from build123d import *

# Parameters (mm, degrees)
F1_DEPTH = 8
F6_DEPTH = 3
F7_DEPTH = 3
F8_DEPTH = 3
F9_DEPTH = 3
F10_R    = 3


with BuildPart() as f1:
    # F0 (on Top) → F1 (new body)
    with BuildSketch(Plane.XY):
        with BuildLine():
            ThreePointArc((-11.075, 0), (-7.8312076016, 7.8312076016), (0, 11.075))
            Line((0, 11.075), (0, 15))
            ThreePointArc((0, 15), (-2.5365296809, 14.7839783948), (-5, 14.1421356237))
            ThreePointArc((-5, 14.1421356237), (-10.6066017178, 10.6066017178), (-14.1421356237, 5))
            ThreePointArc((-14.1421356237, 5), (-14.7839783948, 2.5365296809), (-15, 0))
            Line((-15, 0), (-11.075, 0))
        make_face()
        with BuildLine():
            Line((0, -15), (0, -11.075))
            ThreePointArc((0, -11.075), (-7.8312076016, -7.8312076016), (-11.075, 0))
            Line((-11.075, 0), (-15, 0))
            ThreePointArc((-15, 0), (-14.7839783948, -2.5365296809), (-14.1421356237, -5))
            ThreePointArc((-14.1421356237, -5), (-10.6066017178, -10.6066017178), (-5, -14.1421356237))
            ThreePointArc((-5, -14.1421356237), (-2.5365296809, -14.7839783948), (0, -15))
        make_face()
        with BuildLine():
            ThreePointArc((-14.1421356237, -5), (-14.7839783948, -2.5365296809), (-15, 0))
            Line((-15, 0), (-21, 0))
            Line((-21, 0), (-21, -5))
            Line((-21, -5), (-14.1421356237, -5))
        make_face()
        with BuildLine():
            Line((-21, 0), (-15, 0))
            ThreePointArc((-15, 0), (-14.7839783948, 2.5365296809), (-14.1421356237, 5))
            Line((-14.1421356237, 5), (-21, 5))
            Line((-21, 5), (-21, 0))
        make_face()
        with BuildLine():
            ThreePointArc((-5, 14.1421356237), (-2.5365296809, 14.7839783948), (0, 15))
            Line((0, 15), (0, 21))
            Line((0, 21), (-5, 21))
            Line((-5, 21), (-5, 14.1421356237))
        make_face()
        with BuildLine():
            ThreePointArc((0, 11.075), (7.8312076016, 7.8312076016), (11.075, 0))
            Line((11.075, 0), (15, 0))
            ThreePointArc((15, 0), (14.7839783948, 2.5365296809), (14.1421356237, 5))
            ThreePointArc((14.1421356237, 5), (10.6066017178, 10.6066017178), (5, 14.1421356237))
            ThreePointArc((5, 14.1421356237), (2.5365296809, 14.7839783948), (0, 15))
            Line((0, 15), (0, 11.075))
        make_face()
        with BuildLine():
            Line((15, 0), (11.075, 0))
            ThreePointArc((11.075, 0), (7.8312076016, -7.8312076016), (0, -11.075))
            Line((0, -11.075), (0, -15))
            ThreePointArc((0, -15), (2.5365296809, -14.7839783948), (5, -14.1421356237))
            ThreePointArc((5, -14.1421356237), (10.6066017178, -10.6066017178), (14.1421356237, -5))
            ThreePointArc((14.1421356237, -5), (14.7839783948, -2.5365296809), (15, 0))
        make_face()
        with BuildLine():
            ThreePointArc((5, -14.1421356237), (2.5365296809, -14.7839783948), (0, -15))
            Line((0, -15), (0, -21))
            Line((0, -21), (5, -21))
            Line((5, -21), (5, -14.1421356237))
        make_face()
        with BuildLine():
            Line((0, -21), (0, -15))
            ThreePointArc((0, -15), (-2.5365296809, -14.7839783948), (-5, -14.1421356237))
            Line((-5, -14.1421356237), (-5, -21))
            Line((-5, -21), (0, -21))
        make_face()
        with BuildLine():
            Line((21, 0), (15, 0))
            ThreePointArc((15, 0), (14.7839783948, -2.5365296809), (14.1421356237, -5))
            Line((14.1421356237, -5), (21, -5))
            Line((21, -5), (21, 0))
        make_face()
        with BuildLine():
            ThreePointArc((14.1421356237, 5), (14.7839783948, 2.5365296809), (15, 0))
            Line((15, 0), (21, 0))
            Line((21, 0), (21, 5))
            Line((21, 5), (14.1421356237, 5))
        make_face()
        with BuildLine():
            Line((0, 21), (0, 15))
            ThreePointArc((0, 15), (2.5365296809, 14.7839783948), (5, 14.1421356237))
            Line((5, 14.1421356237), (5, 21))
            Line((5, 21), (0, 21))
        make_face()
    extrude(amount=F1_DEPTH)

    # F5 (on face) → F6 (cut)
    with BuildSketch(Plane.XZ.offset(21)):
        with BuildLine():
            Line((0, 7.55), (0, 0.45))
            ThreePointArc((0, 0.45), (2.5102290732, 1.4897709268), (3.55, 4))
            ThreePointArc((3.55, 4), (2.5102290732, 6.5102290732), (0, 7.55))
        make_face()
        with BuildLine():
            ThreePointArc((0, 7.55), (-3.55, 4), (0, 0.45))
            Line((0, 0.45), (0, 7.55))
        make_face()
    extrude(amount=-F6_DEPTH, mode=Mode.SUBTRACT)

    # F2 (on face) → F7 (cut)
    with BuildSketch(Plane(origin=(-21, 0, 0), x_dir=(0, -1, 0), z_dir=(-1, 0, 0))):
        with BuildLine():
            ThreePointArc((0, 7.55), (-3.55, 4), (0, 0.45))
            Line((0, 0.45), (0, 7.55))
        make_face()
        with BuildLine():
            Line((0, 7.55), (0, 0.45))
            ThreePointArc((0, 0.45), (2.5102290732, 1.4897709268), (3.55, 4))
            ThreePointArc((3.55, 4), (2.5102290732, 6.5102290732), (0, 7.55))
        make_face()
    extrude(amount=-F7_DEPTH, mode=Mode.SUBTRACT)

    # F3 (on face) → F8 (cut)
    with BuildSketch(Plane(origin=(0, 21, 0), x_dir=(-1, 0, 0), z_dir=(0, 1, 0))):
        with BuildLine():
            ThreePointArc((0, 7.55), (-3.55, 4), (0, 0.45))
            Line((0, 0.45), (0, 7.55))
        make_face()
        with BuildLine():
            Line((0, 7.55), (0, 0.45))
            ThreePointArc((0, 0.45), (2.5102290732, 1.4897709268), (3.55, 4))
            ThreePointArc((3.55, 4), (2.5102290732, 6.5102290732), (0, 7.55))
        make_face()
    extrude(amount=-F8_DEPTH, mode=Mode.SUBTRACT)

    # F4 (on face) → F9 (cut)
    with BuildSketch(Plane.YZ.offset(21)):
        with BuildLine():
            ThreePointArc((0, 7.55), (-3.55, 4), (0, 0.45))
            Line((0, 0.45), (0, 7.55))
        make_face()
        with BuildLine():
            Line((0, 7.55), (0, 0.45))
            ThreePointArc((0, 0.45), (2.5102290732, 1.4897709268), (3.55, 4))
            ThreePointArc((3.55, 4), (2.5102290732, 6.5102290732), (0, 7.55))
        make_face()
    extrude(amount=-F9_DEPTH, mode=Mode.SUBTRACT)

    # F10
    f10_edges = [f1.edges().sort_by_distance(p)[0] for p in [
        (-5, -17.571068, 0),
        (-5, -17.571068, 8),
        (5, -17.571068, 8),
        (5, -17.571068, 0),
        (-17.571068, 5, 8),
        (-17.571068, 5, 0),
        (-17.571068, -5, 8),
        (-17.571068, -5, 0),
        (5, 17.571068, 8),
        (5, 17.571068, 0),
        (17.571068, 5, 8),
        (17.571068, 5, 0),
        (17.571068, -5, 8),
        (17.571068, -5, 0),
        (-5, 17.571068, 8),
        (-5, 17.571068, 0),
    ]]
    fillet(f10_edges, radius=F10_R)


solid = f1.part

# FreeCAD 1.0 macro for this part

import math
import FreeCAD as App
import Part
import Sketcher
from FreeCAD import Vector
Q = App.Units.Quantity


def edges_at(feature, points):
    """Names of the edges that pass closest to the given points."""
    edges = feature.Shape.Edges
    near = lambda p: min(range(len(edges)), key=lambda i: edges[i].distToShape(Part.Vertex(*p))[0])
    return sorted({f"Edge{near(p) + 1}" for p in points})

doc = App.newDocument("Part")
body = doc.addObject("PartDesign::Body", "Body")

sketch1 = doc.addObject("Sketcher::SketchObject", "Sketch")
body.addObject(sketch1)
sketch1.AttachmentSupport = (doc.XY_Plane, [""])
sketch1.MapMode = "FlatFace"
sketch1.addGeometry(Part.ArcOfCircle(Part.Circle(Vector(0, 0, 0), Vector(0, 0, 1), 15), math.radians(19), math.radians(71)), False)
sketch1.addGeometry(Part.LineSegment(Vector(5, 14, 0), Vector(5, 21, 0)), False)
sketch1.addGeometry(Part.LineSegment(Vector(5, 21, 0), Vector(-5, 21, 0)), False)
sketch1.addGeometry(Part.LineSegment(Vector(-5, 21, 0), Vector(-5, 14, 0)), False)
sketch1.addGeometry(Part.ArcOfCircle(Part.Circle(Vector(0, 0, 0), Vector(0, 0, 1), 15), math.radians(109), math.radians(161)), False)
sketch1.addGeometry(Part.LineSegment(Vector(-14, 5, 0), Vector(-21, 5, 0)), False)
sketch1.addGeometry(Part.LineSegment(Vector(-21, 5, 0), Vector(-21, -5, 0)), False)
sketch1.addGeometry(Part.LineSegment(Vector(-21, -5, 0), Vector(-14, -5, 0)), False)
sketch1.addGeometry(Part.ArcOfCircle(Part.Circle(Vector(0, 0, 0), Vector(0, 0, 1), 15), math.radians(-161), math.radians(-109)), False)
sketch1.addGeometry(Part.LineSegment(Vector(-5, -14, 0), Vector(-5, -21, 0)), False)
sketch1.addGeometry(Part.LineSegment(Vector(-5, -21, 0), Vector(5, -21, 0)), False)
sketch1.addGeometry(Part.LineSegment(Vector(5, -21, 0), Vector(5, -14, 0)), False)
sketch1.addGeometry(Part.ArcOfCircle(Part.Circle(Vector(0, 0, 0), Vector(0, 0, 1), 15), math.radians(-71), math.radians(-19)), False)
sketch1.addGeometry(Part.LineSegment(Vector(14, -5, 0), Vector(21, -5, 0)), False)
sketch1.addGeometry(Part.LineSegment(Vector(21, -5, 0), Vector(21, 5, 0)), False)
sketch1.addGeometry(Part.LineSegment(Vector(21, 5, 0), Vector(14, 5, 0)), False)
sketch1.addGeometry(Part.ArcOfCircle(Part.Circle(Vector(0, 0, 0), Vector(0, 0, 1), 11), math.radians(90), math.radians(180)), False)
sketch1.addGeometry(Part.ArcOfCircle(Part.Circle(Vector(0, 0, 0), Vector(0, 0, 1), 11), math.radians(0), math.radians(90)), False)
sketch1.addGeometry(Part.ArcOfCircle(Part.Circle(Vector(0, 0, 0), Vector(0, 0, 1), 11), math.radians(-90), math.radians(0)), False)
sketch1.addGeometry(Part.ArcOfCircle(Part.Circle(Vector(0, 0, 0), Vector(0, 0, 1), 11), math.radians(180), math.radians(270)), False)
sketch1.addConstraint(Sketcher.Constraint("Coincident", 0, 2, 1, 1))
sketch1.addConstraint(Sketcher.Constraint("Coincident", 1, 2, 2, 1))
sketch1.addConstraint(Sketcher.Constraint("Coincident", 2, 2, 3, 1))
sketch1.addConstraint(Sketcher.Constraint("Coincident", 3, 2, 4, 1))
sketch1.addConstraint(Sketcher.Constraint("Coincident", 4, 2, 5, 1))
sketch1.addConstraint(Sketcher.Constraint("Coincident", 5, 2, 6, 1))
sketch1.addConstraint(Sketcher.Constraint("Coincident", 6, 2, 7, 1))
sketch1.addConstraint(Sketcher.Constraint("Coincident", 7, 2, 8, 1))
sketch1.addConstraint(Sketcher.Constraint("Coincident", 8, 2, 9, 1))
sketch1.addConstraint(Sketcher.Constraint("Coincident", 9, 2, 10, 1))
sketch1.addConstraint(Sketcher.Constraint("Coincident", 10, 2, 11, 1))
sketch1.addConstraint(Sketcher.Constraint("Coincident", 11, 2, 12, 1))
sketch1.addConstraint(Sketcher.Constraint("Coincident", 12, 2, 13, 1))
sketch1.addConstraint(Sketcher.Constraint("Coincident", 13, 2, 14, 1))
sketch1.addConstraint(Sketcher.Constraint("Coincident", 14, 2, 15, 1))
sketch1.addConstraint(Sketcher.Constraint("Coincident", 15, 2, 0, 1))
sketch1.addConstraint(Sketcher.Constraint("Tangent", 16, 1, 17, 2))
sketch1.addConstraint(Sketcher.Constraint("Tangent", 17, 1, 18, 2))
sketch1.addConstraint(Sketcher.Constraint("Tangent", 18, 1, 19, 2))
sketch1.addConstraint(Sketcher.Constraint("Tangent", 19, 1, 16, 2))
sketch1.addConstraint(Sketcher.Constraint("Vertical", 1))
sketch1.addConstraint(Sketcher.Constraint("Horizontal", 2))
sketch1.addConstraint(Sketcher.Constraint("Vertical", 3))
sketch1.addConstraint(Sketcher.Constraint("Horizontal", 5))
sketch1.addConstraint(Sketcher.Constraint("Vertical", 6))
sketch1.addConstraint(Sketcher.Constraint("Horizontal", 7))
sketch1.addConstraint(Sketcher.Constraint("Vertical", 9))
sketch1.addConstraint(Sketcher.Constraint("Horizontal", 10))
sketch1.addConstraint(Sketcher.Constraint("Vertical", 11))
sketch1.addConstraint(Sketcher.Constraint("Horizontal", 13))
sketch1.addConstraint(Sketcher.Constraint("Vertical", 14))
sketch1.addConstraint(Sketcher.Constraint("Horizontal", 15))
sketch1.addConstraint(Sketcher.Constraint("Coincident", 0, 3, -1, 1))
sketch1.addConstraint(Sketcher.Constraint("Coincident", 4, 3, -1, 1))
sketch1.addConstraint(Sketcher.Constraint("Coincident", 8, 3, -1, 1))
sketch1.addConstraint(Sketcher.Constraint("Coincident", 12, 3, -1, 1))
sketch1.addConstraint(Sketcher.Constraint("Coincident", 16, 3, -1, 1))
sketch1.addConstraint(Sketcher.Constraint("Equal", 0, 4))
sketch1.addConstraint(Sketcher.Constraint("Equal", 4, 8))
sketch1.addConstraint(Sketcher.Constraint("Equal", 8, 12))
sketch1.addConstraint(Sketcher.Constraint("Equal", 16, 17))
sketch1.addConstraint(Sketcher.Constraint("Symmetric", 1, 2, 9, 2, -1, 1))
sketch1.addConstraint(Sketcher.Constraint("Symmetric", 5, 2, 13, 2, -1, 1))
sketch1.addConstraint(Sketcher.Constraint("PointOnObject", 16, 1, -2))
sketch1.addConstraint(Sketcher.Constraint("PointOnObject", 17, 1, -1))
sketch1.addConstraint(Sketcher.Constraint("PointOnObject", 18, 1, -2))
sketch1.addConstraint(Sketcher.Constraint("PointOnObject", 19, 1, -1))
sketch1.addConstraint(Sketcher.Constraint("Horizontal", 0, 2, 3, 2))
sketch1.addConstraint(Sketcher.Constraint("Horizontal", 8, 2, 11, 2))
sketch1.addConstraint(Sketcher.Constraint("Horizontal", 7, 2, 12, 2))
sketch1.addConstraint(Sketcher.Constraint("Horizontal", 5, 2, 14, 2))
sketch1.addConstraint(Sketcher.Constraint("Equal", 15, 1))
sketch1.addConstraint(Sketcher.Constraint("Equal", 10, 6))
sketch1.addConstraint(Sketcher.Constraint("Radius", 0, Q("15 mm")))
sketch1.addConstraint(Sketcher.Constraint("DistanceX", 2, 2, 2, 1, Q("10 mm")))
sketch1.addConstraint(Sketcher.Constraint("DistanceY", -1, 1, 1, 2, Q("21 mm")))
sketch1.addConstraint(Sketcher.Constraint("Radius", 16, Q("11.075 mm")))
pad1 = doc.addObject("PartDesign::Pad", "Pad")
body.addObject(pad1)
pad1.Profile = sketch1
pad1.Length = 8

sketch2 = doc.addObject("Sketcher::SketchObject", "Sketch001")
body.addObject(sketch2)
sketch2.AttachmentSupport = (doc.XZ_Plane, [""])
sketch2.MapMode = "FlatFace"
sketch2.AttachmentOffset = App.Placement(Vector(0, 0, 21), App.Rotation())
sketch2.addGeometry(Part.ArcOfCircle(Part.Circle(Vector(0, 4, 0), Vector(0, 0, 1), 3.5), math.radians(-90), math.radians(0)), False)
sketch2.addGeometry(Part.ArcOfCircle(Part.Circle(Vector(0, 4, 0), Vector(0, 0, 1), 3.5), math.radians(0), math.radians(90)), False)
sketch2.addGeometry(Part.ArcOfCircle(Part.Circle(Vector(0, 4, 0), Vector(0, 0, 1), 3.5), math.radians(90), math.radians(270)), False)
sketch2.addConstraint(Sketcher.Constraint("Tangent", 0, 2, 1, 1))
sketch2.addConstraint(Sketcher.Constraint("Tangent", 1, 2, 2, 1))
sketch2.addConstraint(Sketcher.Constraint("Tangent", 2, 2, 0, 1))
sketch2.addConstraint(Sketcher.Constraint("PointOnObject", 0, 3, -2))
sketch2.addConstraint(Sketcher.Constraint("PointOnObject", 1, 2, -2))
sketch2.addConstraint(Sketcher.Constraint("PointOnObject", 2, 2, -2))
sketch2.addConstraint(Sketcher.Constraint("Horizontal", 2, 3, 0, 2))
sketch2.addConstraint(Sketcher.Constraint("Radius", 0, Q("3.55 mm")))
sketch2.addConstraint(Sketcher.Constraint("DistanceY", -1, 1, 0, 3, Q("4 mm")))
pocket1 = doc.addObject("PartDesign::Pocket", "Pocket")
body.addObject(pocket1)
pocket1.Profile = sketch2
pocket1.Length = 3

sketch3 = doc.addObject("Sketcher::SketchObject", "Sketch002")
body.addObject(sketch3)
sketch3.AttachmentSupport = (doc.YZ_Plane, [""])
sketch3.MapMode = "FlatFace"
sketch3.AttachmentOffset = App.Placement(Vector(0, 0, -21), App.Rotation())
sketch3.addGeometry(Part.ArcOfCircle(Part.Circle(Vector(0, 4, 0), Vector(0, 0, 1), 3.5), math.radians(-90), math.radians(90)), False)
sketch3.addGeometry(Part.ArcOfCircle(Part.Circle(Vector(0, 4, 0), Vector(0, 0, 1), 3.5), math.radians(180), math.radians(270)), False)
sketch3.addGeometry(Part.ArcOfCircle(Part.Circle(Vector(0, 4, 0), Vector(0, 0, 1), 3.5), math.radians(90), math.radians(180)), False)
sketch3.addConstraint(Sketcher.Constraint("Tangent", 0, 1, 1, 2))
sketch3.addConstraint(Sketcher.Constraint("Tangent", 1, 1, 2, 2))
sketch3.addConstraint(Sketcher.Constraint("Tangent", 2, 1, 0, 2))
sketch3.addConstraint(Sketcher.Constraint("PointOnObject", 0, 3, -2))
sketch3.addConstraint(Sketcher.Constraint("PointOnObject", 0, 1, -2))
sketch3.addConstraint(Sketcher.Constraint("PointOnObject", 2, 1, -2))
sketch3.addConstraint(Sketcher.Constraint("Horizontal", 2, 3, 1, 1))
sketch3.addConstraint(Sketcher.Constraint("Radius", 0, Q("3.55 mm")))
sketch3.addConstraint(Sketcher.Constraint("DistanceY", -1, 1, 0, 3, Q("4 mm")))
pocket2 = doc.addObject("PartDesign::Pocket", "Pocket001")
body.addObject(pocket2)
pocket2.Profile = sketch3
pocket2.Length = 3
pocket2.Reversed = True

sketch4 = doc.addObject("Sketcher::SketchObject", "Sketch003")
body.addObject(sketch4)
sketch4.AttachmentSupport = (doc.XZ_Plane, [""])
sketch4.MapMode = "FlatFace"
sketch4.AttachmentOffset = App.Placement(Vector(0, 0, -21), App.Rotation())
sketch4.addGeometry(Part.ArcOfCircle(Part.Circle(Vector(0, 4, 0), Vector(0, 0, 1), 3.5), math.radians(-90), math.radians(90)), False)
sketch4.addGeometry(Part.ArcOfCircle(Part.Circle(Vector(0, 4, 0), Vector(0, 0, 1), 3.5), math.radians(180), math.radians(270)), False)
sketch4.addGeometry(Part.ArcOfCircle(Part.Circle(Vector(0, 4, 0), Vector(0, 0, 1), 3.5), math.radians(90), math.radians(180)), False)
sketch4.addConstraint(Sketcher.Constraint("Tangent", 0, 1, 1, 2))
sketch4.addConstraint(Sketcher.Constraint("Tangent", 1, 1, 2, 2))
sketch4.addConstraint(Sketcher.Constraint("Tangent", 2, 1, 0, 2))
sketch4.addConstraint(Sketcher.Constraint("PointOnObject", 0, 3, -2))
sketch4.addConstraint(Sketcher.Constraint("PointOnObject", 0, 1, -2))
sketch4.addConstraint(Sketcher.Constraint("PointOnObject", 2, 1, -2))
sketch4.addConstraint(Sketcher.Constraint("Horizontal", 2, 3, 1, 1))
sketch4.addConstraint(Sketcher.Constraint("Radius", 0, Q("3.55 mm")))
sketch4.addConstraint(Sketcher.Constraint("DistanceY", -1, 1, 0, 3, Q("4 mm")))
pocket3 = doc.addObject("PartDesign::Pocket", "Pocket002")
body.addObject(pocket3)
pocket3.Profile = sketch4
pocket3.Length = 3
pocket3.Reversed = True

sketch5 = doc.addObject("Sketcher::SketchObject", "Sketch004")
body.addObject(sketch5)
sketch5.AttachmentSupport = (doc.YZ_Plane, [""])
sketch5.MapMode = "FlatFace"
sketch5.AttachmentOffset = App.Placement(Vector(0, 0, 21), App.Rotation())
sketch5.addGeometry(Part.ArcOfCircle(Part.Circle(Vector(0, 4, 0), Vector(0, 0, 1), 3.5), math.radians(90), math.radians(270)), False)
sketch5.addGeometry(Part.ArcOfCircle(Part.Circle(Vector(0, 4, 0), Vector(0, 0, 1), 3.5), math.radians(-90), math.radians(0)), False)
sketch5.addGeometry(Part.ArcOfCircle(Part.Circle(Vector(0, 4, 0), Vector(0, 0, 1), 3.5), math.radians(0), math.radians(90)), False)
sketch5.addConstraint(Sketcher.Constraint("Tangent", 0, 2, 1, 1))
sketch5.addConstraint(Sketcher.Constraint("Tangent", 1, 2, 2, 1))
sketch5.addConstraint(Sketcher.Constraint("Tangent", 2, 2, 0, 1))
sketch5.addConstraint(Sketcher.Constraint("PointOnObject", 0, 3, -2))
sketch5.addConstraint(Sketcher.Constraint("PointOnObject", 0, 2, -2))
sketch5.addConstraint(Sketcher.Constraint("PointOnObject", 2, 2, -2))
sketch5.addConstraint(Sketcher.Constraint("Horizontal", 2, 3, 1, 2))
sketch5.addConstraint(Sketcher.Constraint("Radius", 0, Q("3.55 mm")))
sketch5.addConstraint(Sketcher.Constraint("DistanceY", -1, 1, 0, 3, Q("4 mm")))
pocket4 = doc.addObject("PartDesign::Pocket", "Pocket003")
body.addObject(pocket4)
pocket4.Profile = sketch5
pocket4.Length = 3
doc.recompute()

fillet = doc.addObject("PartDesign::Fillet", "Fillet")
body.addObject(fillet)
fillet.Base = (pocket4, edges_at(pocket4, [
    (-5, -17.571, 0),
    (-5, -17.571, 8),
    (5, -17.571, 8),
    (5, -17.571, 0),
    (-17.571, 5, 8),
    (-17.571, 5, 0),
    (-17.571, -5, 8),
    (-17.571, -5, 0),
    (5, 17.571, 8),
    (5, 17.571, 0),
    (17.571, 5, 8),
    (17.571, 5, 0),
    (17.571, -5, 8),
    (17.571, -5, 0),
    (-5, 17.571, 8),
    (-5, 17.571, 0),
]))
fillet.Radius = 3

doc.recompute()
